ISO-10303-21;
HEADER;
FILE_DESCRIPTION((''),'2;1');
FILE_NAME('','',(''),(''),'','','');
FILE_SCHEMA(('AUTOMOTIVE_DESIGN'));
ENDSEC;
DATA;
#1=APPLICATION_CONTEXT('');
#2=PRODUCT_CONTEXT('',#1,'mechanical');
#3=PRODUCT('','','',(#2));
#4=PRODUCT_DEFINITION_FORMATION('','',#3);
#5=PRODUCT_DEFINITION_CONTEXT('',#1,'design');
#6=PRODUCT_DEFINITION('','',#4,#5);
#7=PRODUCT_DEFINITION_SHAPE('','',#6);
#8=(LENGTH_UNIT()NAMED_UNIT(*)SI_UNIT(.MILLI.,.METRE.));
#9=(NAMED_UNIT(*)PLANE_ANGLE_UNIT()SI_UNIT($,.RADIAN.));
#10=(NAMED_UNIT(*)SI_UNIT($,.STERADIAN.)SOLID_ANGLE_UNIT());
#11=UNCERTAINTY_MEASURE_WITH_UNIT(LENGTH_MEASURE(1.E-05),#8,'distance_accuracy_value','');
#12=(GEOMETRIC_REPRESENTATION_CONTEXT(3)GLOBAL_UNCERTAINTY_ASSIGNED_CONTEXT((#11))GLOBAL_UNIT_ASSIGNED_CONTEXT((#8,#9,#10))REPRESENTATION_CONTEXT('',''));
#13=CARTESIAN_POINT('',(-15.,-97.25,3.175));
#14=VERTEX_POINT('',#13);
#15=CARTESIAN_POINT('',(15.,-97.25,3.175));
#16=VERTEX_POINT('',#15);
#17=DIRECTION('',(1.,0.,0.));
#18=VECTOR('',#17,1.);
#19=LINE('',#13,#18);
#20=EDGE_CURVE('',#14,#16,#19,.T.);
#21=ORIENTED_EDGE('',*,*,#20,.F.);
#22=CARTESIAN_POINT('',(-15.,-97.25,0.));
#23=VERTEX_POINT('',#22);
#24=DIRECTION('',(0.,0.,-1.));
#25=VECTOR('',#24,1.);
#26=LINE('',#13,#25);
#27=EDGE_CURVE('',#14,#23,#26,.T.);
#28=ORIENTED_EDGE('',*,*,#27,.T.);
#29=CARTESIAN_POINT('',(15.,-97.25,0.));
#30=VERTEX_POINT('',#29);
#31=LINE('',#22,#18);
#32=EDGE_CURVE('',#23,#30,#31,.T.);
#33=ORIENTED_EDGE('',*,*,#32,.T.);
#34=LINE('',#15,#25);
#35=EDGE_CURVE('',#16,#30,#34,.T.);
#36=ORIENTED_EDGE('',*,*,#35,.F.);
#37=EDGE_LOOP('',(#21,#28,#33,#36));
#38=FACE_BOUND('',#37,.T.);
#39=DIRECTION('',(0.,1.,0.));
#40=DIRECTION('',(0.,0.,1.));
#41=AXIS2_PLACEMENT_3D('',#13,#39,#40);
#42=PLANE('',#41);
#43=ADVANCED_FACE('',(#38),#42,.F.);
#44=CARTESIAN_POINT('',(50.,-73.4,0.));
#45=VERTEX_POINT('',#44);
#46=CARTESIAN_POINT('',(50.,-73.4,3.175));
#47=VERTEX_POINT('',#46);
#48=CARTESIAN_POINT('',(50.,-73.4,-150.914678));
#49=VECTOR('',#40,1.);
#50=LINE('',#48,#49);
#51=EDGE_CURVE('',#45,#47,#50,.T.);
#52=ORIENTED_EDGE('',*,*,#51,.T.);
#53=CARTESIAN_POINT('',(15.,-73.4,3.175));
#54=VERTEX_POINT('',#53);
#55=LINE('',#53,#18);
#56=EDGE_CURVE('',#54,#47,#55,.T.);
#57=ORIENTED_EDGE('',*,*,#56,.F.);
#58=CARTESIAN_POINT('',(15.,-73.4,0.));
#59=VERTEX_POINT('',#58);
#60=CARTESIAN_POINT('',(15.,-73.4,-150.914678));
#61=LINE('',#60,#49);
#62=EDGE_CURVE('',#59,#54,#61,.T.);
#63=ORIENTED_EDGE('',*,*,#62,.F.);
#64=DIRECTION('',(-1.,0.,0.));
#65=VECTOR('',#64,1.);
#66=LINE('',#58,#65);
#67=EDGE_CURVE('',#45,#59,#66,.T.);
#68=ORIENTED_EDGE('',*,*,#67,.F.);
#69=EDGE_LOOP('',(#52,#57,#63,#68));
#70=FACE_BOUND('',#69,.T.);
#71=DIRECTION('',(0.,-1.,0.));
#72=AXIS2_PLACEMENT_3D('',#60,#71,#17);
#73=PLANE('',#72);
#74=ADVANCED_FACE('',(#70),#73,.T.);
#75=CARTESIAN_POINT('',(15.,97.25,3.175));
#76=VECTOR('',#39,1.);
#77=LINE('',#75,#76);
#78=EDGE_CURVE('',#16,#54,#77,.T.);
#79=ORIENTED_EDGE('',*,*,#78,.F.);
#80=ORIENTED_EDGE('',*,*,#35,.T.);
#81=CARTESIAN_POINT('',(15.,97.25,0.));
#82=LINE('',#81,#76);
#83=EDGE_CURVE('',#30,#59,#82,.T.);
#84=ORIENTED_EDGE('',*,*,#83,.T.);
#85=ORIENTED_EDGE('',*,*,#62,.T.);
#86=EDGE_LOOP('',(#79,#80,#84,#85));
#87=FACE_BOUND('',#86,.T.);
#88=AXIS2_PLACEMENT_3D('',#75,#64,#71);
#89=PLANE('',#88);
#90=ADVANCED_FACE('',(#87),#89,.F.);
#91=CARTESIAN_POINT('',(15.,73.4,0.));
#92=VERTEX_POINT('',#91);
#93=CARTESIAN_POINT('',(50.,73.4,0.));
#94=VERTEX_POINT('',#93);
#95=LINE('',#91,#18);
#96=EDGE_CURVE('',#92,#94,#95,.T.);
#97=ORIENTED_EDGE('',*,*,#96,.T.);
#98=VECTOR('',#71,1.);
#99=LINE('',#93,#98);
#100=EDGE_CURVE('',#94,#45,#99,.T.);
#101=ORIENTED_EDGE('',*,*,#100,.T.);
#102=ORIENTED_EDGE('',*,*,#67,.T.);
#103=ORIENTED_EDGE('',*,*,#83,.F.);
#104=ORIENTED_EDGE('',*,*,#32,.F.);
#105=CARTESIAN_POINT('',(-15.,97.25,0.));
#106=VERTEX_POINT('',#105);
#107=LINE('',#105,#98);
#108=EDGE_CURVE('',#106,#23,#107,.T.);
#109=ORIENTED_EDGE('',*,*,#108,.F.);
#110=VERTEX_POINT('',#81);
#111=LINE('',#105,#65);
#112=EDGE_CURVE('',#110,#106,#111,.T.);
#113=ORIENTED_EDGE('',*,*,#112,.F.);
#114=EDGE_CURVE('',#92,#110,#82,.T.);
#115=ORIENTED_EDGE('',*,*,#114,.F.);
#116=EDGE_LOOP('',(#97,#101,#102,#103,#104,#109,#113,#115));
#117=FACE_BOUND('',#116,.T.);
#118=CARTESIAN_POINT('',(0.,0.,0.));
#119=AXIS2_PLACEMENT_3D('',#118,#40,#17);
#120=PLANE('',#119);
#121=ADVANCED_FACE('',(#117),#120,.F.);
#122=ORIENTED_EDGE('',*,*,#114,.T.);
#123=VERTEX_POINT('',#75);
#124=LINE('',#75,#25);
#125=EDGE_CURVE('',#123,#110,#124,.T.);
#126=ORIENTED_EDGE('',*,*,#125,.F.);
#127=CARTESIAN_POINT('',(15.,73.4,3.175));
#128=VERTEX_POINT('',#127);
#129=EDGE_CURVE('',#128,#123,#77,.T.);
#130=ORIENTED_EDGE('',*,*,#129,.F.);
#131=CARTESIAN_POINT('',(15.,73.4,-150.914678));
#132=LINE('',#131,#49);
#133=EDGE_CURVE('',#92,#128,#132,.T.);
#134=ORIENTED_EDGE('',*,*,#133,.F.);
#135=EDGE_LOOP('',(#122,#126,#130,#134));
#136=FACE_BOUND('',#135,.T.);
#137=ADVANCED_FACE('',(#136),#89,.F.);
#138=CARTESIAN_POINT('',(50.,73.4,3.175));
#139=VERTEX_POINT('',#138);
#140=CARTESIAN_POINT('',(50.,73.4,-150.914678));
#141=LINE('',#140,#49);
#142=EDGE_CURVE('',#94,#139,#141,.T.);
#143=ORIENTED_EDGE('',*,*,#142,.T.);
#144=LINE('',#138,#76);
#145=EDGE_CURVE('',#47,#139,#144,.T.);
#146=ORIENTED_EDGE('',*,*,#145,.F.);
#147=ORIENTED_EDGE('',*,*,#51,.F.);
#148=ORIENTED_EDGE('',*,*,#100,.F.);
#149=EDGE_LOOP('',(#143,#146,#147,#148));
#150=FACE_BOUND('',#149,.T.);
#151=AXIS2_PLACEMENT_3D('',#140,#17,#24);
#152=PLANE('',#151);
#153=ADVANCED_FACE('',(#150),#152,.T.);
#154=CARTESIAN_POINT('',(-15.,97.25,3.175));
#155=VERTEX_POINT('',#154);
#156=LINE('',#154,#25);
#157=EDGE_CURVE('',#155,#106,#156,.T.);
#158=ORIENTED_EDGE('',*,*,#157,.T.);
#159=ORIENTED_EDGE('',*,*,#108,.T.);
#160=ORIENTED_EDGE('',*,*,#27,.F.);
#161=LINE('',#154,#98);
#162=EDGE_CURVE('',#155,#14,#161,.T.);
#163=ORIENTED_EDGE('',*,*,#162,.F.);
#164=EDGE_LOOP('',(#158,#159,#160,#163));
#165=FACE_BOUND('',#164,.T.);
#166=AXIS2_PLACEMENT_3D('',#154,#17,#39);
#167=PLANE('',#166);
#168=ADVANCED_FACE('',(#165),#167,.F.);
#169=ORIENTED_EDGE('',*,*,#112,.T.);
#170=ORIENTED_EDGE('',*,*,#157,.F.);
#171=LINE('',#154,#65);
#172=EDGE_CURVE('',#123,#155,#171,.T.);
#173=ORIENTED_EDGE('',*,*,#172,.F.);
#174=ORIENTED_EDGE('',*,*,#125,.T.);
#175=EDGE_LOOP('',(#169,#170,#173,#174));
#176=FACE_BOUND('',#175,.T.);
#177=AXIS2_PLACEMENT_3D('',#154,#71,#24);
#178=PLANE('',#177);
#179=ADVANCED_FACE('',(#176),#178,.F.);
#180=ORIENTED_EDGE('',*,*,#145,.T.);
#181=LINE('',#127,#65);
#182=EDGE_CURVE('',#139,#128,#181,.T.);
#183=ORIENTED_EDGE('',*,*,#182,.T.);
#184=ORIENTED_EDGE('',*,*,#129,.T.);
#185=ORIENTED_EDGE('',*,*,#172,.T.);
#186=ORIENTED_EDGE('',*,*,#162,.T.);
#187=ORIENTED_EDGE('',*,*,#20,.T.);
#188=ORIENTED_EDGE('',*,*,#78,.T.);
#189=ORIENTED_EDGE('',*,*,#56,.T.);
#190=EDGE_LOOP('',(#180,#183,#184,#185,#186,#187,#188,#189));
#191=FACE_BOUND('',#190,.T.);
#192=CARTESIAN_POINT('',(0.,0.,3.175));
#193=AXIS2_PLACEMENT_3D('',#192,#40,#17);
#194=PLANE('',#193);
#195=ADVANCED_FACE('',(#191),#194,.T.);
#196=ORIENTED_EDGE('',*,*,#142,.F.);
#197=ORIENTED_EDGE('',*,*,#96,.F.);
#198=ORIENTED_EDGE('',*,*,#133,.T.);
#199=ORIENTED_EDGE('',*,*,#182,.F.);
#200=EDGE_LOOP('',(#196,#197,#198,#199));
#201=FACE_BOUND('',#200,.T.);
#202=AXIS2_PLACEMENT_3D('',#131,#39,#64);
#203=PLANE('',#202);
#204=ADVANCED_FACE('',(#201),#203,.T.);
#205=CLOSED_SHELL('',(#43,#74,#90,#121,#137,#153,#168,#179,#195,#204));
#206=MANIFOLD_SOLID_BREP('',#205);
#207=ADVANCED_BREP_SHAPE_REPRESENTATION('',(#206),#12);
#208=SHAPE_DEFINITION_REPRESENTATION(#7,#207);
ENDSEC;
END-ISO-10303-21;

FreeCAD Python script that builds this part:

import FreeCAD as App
import Part
import Sketcher
from FreeCAD import Vector

doc = App.newDocument("Part")
body = doc.addObject("PartDesign::Body", "Body")

sketch1 = body.newObject("Sketcher::SketchObject", "Sketch")
sketch1.AttachmentSupport = (doc.getObject("XY_Plane"), [""])
sketch1.MapMode = "FlatFace"
sketch1.addGeometry([
    Part.LineSegment(Vector(-15, 97, 0), Vector(-15, -97, 0)),
    Part.LineSegment(Vector(-15, -97, 0), Vector(15, -97, 0)),
    Part.LineSegment(Vector(15, -97, 0), Vector(15, 97, 0)),
    Part.LineSegment(Vector(15, 97, 0), Vector(-15, 97, 0)),
], False)
sketch1.addConstraint([
    Sketcher.Constraint("Coincident", 0, 2, 1, 1),
    Sketcher.Constraint("Coincident", 1, 2, 2, 1),
    Sketcher.Constraint("Coincident", 2, 2, 3, 1),
    Sketcher.Constraint("Coincident", 3, 2, 0, 1),
    Sketcher.Constraint("Vertical", 0),
    Sketcher.Constraint("Horizontal", 1),
    Sketcher.Constraint("Vertical", 2),
    Sketcher.Constraint("Horizontal", 3),
    Sketcher.Constraint("Symmetric", 0, 2, 2, 2, -1, 1),
    Sketcher.Constraint("DistanceX", 1, 1, 1, 2, 30.0),
    Sketcher.Constraint("DistanceY", 0, 2, 0, 1, 194.5),
])
pad1 = body.newObject("PartDesign::Pad", "Pad")
pad1.Profile = sketch1
pad1.Length = 3.175

sketch2 = body.newObject("Sketcher::SketchObject", "Sketch001")
sketch2.AttachmentSupport = (doc.getObject("XY_Plane"), [""])
sketch2.MapMode = "FlatFace"
sketch2.AttachmentOffset = App.Placement(Vector(0, 0, 3.175), App.Rotation())
sketch2.addGeometry([
    Part.LineSegment(Vector(15, 73, 0), Vector(15, -73, 0)),
    Part.LineSegment(Vector(15, -73, 0), Vector(50, -73, 0)),
    Part.LineSegment(Vector(50, -73, 0), Vector(50, 73, 0)),
    Part.LineSegment(Vector(50, 73, 0), Vector(15, 73, 0)),
], False)
sketch2.addConstraint([
    Sketcher.Constraint("Coincident", 0, 2, 1, 1),
    Sketcher.Constraint("Coincident", 1, 2, 2, 1),
    Sketcher.Constraint("Coincident", 2, 2, 3, 1),
    Sketcher.Constraint("Coincident", 3, 2, 0, 1),
    Sketcher.Constraint("Vertical", 0),
    Sketcher.Constraint("Horizontal", 1),
    Sketcher.Constraint("Vertical", 2),
    Sketcher.Constraint("Horizontal", 3),
    Sketcher.Constraint("DistanceX", 1, 1, 1, 2, 35.0),
    Sketcher.Constraint("DistanceY", 0, 2, 0, 1, 146.8),
    Sketcher.Constraint("DistanceX", -1, 1, 0, 2, 15.0),
    Sketcher.Constraint("DistanceY", 0, 2, -1, 1, 73.4),
])
pad2 = body.newObject("PartDesign::Pad", "Pad001")
pad2.Profile = sketch2
pad2.Length = 3.175
pad2.Reversed = True

doc.recompute()
